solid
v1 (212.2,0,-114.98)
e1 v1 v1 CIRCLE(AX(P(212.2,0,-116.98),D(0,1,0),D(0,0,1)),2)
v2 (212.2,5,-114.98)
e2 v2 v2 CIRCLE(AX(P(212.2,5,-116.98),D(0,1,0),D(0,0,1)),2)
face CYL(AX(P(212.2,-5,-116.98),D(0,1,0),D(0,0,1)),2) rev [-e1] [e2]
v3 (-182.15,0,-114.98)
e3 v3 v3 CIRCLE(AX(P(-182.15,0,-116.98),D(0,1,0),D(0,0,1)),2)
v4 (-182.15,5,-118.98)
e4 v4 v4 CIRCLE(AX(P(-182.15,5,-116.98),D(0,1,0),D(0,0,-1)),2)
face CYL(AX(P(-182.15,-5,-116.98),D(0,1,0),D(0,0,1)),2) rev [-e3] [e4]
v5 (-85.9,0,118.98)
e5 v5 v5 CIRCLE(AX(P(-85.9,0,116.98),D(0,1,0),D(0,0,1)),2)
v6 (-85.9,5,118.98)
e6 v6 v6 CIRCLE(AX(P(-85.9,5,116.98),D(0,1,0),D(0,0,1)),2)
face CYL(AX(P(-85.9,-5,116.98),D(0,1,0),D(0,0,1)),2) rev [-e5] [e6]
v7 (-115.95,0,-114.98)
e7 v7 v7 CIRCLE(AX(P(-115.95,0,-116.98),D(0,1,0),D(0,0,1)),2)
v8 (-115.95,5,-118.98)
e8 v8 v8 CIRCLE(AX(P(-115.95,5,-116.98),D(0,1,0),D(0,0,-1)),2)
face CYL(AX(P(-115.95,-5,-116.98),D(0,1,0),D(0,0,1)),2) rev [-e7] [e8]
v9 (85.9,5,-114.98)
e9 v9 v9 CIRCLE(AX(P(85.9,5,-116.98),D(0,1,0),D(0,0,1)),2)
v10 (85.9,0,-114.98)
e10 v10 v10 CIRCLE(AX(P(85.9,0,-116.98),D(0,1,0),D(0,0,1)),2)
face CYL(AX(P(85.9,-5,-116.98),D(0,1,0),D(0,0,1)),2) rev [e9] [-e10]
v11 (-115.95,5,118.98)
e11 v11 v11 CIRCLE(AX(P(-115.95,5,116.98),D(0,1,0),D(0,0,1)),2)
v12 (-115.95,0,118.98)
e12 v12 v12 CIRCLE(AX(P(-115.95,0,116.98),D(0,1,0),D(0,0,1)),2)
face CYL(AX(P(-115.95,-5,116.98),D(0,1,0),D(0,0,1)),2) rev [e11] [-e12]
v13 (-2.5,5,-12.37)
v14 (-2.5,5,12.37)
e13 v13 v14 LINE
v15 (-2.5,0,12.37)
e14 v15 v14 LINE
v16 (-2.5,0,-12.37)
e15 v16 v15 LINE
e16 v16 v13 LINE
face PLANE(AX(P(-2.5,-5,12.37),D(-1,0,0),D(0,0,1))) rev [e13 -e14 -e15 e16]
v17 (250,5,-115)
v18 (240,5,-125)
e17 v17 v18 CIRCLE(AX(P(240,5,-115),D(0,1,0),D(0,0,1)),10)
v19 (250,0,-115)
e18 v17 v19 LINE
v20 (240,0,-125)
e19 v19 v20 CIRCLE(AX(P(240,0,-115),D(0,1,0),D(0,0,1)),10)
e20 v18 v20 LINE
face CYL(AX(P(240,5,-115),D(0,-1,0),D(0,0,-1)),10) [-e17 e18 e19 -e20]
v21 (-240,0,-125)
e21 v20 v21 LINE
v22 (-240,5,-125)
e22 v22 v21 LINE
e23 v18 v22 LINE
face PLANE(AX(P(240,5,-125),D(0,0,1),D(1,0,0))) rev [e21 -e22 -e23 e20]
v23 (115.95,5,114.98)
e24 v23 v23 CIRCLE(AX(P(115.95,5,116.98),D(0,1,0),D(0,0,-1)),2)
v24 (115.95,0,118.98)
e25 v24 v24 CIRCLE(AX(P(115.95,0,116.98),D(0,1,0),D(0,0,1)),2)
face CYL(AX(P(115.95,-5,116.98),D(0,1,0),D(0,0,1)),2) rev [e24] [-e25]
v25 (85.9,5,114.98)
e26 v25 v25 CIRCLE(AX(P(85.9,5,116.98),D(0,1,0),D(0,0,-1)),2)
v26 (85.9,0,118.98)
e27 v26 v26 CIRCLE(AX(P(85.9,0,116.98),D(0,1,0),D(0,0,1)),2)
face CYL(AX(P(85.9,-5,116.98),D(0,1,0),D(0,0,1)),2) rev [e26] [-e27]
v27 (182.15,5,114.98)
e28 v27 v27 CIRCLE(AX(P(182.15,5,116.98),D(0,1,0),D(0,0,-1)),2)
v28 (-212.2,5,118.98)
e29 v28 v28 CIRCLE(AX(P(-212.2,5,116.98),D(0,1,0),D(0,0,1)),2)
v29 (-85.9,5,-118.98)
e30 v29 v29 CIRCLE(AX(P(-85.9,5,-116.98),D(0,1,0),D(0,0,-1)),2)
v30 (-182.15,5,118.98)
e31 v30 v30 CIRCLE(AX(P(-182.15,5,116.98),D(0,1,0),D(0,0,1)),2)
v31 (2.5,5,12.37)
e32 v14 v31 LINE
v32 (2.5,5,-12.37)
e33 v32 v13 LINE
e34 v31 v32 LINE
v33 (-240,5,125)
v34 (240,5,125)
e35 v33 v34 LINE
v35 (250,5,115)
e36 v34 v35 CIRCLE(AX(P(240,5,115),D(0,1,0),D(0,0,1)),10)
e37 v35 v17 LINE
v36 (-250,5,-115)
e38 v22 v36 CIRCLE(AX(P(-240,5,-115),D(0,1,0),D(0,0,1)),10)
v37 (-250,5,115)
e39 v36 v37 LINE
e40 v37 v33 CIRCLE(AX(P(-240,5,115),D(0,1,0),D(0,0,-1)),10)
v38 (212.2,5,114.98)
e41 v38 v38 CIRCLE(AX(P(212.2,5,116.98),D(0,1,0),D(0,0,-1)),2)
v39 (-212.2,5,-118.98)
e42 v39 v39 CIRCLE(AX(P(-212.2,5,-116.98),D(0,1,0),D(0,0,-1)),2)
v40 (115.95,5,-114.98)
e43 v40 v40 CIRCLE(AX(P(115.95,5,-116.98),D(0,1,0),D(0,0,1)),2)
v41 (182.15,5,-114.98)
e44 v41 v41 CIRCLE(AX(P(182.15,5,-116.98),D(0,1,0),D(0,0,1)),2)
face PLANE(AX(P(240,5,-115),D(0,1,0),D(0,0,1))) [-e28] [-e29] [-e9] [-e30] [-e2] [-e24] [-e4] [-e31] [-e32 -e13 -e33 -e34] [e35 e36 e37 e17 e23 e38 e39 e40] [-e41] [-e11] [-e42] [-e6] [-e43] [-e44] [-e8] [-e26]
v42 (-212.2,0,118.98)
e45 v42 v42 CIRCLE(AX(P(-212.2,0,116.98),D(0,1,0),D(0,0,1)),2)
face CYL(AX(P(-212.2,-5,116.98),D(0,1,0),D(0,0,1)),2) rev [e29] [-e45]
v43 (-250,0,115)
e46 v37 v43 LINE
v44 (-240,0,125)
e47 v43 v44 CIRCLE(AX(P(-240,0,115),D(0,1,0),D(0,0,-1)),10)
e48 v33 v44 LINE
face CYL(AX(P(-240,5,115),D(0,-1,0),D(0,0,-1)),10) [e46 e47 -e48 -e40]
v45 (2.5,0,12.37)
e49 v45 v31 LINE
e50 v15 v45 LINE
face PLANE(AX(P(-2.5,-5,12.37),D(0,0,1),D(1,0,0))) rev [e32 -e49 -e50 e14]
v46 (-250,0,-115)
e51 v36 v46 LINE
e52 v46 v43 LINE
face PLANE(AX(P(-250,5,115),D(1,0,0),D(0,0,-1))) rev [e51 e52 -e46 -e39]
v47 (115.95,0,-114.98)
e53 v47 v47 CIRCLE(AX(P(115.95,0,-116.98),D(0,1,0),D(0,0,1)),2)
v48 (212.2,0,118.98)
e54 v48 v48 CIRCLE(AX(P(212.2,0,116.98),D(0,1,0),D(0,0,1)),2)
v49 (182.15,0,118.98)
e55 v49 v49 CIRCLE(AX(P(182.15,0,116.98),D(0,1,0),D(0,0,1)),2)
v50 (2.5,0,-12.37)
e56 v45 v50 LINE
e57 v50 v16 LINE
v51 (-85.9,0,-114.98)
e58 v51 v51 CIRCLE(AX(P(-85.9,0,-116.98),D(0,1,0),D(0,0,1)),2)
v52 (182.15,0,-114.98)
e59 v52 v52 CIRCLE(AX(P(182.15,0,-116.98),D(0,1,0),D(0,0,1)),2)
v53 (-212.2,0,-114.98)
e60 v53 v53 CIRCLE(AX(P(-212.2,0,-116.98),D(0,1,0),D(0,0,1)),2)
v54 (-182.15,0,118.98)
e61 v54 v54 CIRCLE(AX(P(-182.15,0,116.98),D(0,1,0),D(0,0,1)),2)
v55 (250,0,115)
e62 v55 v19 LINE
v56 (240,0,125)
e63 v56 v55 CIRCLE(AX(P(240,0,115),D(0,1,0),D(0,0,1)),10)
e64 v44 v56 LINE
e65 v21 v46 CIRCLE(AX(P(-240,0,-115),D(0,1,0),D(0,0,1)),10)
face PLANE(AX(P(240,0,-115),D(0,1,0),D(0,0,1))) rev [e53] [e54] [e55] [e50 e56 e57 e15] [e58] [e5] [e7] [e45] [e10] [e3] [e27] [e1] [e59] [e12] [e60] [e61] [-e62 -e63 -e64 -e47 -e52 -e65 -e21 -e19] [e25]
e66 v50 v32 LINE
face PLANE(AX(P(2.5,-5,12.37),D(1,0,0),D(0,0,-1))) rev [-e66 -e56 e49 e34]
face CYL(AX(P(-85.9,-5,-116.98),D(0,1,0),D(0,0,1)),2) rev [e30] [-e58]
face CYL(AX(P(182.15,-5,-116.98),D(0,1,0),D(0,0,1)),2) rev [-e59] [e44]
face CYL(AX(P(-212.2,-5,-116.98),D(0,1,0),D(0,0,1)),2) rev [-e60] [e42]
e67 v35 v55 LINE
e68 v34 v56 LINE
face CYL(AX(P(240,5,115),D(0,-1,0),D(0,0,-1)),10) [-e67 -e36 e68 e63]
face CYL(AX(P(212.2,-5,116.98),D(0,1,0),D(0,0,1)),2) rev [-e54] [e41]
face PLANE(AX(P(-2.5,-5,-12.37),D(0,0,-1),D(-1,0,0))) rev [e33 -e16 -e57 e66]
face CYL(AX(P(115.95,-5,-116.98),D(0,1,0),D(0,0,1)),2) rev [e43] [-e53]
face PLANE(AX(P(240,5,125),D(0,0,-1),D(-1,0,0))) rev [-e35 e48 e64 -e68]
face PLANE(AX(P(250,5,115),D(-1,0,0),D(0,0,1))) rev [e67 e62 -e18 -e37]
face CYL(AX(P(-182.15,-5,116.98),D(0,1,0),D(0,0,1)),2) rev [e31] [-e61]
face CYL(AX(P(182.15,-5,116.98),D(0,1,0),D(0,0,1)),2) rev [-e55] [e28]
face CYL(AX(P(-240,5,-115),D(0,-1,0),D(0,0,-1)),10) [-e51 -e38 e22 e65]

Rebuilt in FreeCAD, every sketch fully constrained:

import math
import FreeCAD as App
import Part
import Sketcher
Q = App.Units.Quantity

doc = App.newDocument("Part")
body = doc.addObject("PartDesign::Body", "Body")

# Sketch on XZ plane
sketch1 = doc.addObject("Sketcher::SketchObject", "Sketch")
body.addObject(sketch1)
sketch1.AttachmentSupport = (doc.XZ_Plane, [""])
sketch1.MapMode = "FlatFace"
sketch1.addGeometry([
    Part.LineSegment(App.Vector(-240, 125, 0), App.Vector(240, 125, 0)),  # 0
    Part.ArcOfCircle(Part.Circle(App.Vector(240, 115, 0), App.Vector(0, 0, 1), 10), math.radians(0), math.radians(90)),  # 1
    Part.LineSegment(App.Vector(250, 115, 0), App.Vector(250, -115, 0)),  # 2
    Part.ArcOfCircle(Part.Circle(App.Vector(240, -115, 0), App.Vector(0, 0, 1), 10), math.radians(-90), math.radians(0)),  # 3
    Part.LineSegment(App.Vector(240, -125, 0), App.Vector(-240, -125, 0)),  # 4
    Part.ArcOfCircle(Part.Circle(App.Vector(-240, -115, 0), App.Vector(0, 0, 1), 10), math.radians(180), math.radians(270)),  # 5
    Part.LineSegment(App.Vector(-250, -115, 0), App.Vector(-250, 115, 0)),  # 6
    Part.ArcOfCircle(Part.Circle(App.Vector(-240, 115, 0), App.Vector(0, 0, 1), 10), math.radians(90), math.radians(180)),  # 7
], False)
sketch1.addConstraint([
    Sketcher.Constraint("Tangent", 0, 2, 1, 2),
    Sketcher.Constraint("Tangent", 1, 1, 2, 1),
    Sketcher.Constraint("Tangent", 2, 2, 3, 2),
    Sketcher.Constraint("Tangent", 3, 1, 4, 1),
    Sketcher.Constraint("Tangent", 4, 2, 5, 2),
    Sketcher.Constraint("Tangent", 5, 1, 6, 1),
    Sketcher.Constraint("Tangent", 6, 2, 7, 2),
    Sketcher.Constraint("Tangent", 7, 1, 0, 1),
    Sketcher.Constraint("Horizontal", 0),
    Sketcher.Constraint("Vertical", 2),
    Sketcher.Constraint("Horizontal", 4),
    Sketcher.Constraint("Vertical", 6),
    Sketcher.Constraint("Equal", 1, 3),
    Sketcher.Constraint("Equal", 3, 5),
    Sketcher.Constraint("Equal", 5, 7),
    Sketcher.Constraint("Symmetric", 1, 3, 5, 3, -1, 1),
    Sketcher.Constraint("Radius", 1, Q("10 mm")),
    Sketcher.Constraint("DistanceX", 0, 1, 0, 2, Q("480 mm")),
    Sketcher.Constraint("DistanceY", 2, 2, 2, 1, Q("230 mm")),
])
pad1 = doc.addObject("PartDesign::Pad", "Pad")
body.addObject(pad1)
pad1.Profile = sketch1
pad1.Length = 5
pad1.Reversed = True

# Sketch on XZ plane
sketch2 = doc.addObject("Sketcher::SketchObject", "Sketch001")
body.addObject(sketch2)
sketch2.AttachmentSupport = (doc.XZ_Plane, [""])
sketch2.MapMode = "FlatFace"
sketch2.AttachmentOffset = App.Placement(App.Vector(0, 0, -5), App.Rotation())
sketch2.addGeometry([
    Part.Circle(App.Vector(-212.2, 116.98, 0), App.Vector(0, 0, 1), 2),  # 0
    Part.Circle(App.Vector(-182.15, 116.98, 0), App.Vector(0, 0, 1), 2),  # 1
    Part.Circle(App.Vector(-85.9, 116.98, 0), App.Vector(0, 0, 1), 2),  # 2
    Part.Circle(App.Vector(-115.95, 116.98, 0), App.Vector(0, 0, 1), 2),  # 3
    Part.Circle(App.Vector(212.2, 116.98, 0), App.Vector(0, 0, 1), 2),  # 4
    Part.Circle(App.Vector(182.15, 116.98, 0), App.Vector(0, 0, 1), 2),  # 5
    Part.Circle(App.Vector(115.95, 116.98, 0), App.Vector(0, 0, 1), 2),  # 6
    Part.Circle(App.Vector(85.9, 116.98, 0), App.Vector(0, 0, 1), 2),  # 7
    Part.Circle(App.Vector(212.2, -116.98, 0), App.Vector(0, 0, 1), 2),  # 8
    Part.Circle(App.Vector(182.15, -116.98, 0), App.Vector(0, 0, 1), 2),  # 9
    Part.Circle(App.Vector(115.95, -116.98, 0), App.Vector(0, 0, 1), 2),  # 10
    Part.Circle(App.Vector(85.9, -116.98, 0), App.Vector(0, 0, 1), 2),  # 11
    Part.Circle(App.Vector(-182.15, -116.98, 0), App.Vector(0, 0, 1), 2),  # 12
    Part.Circle(App.Vector(-212.2, -116.98, 0), App.Vector(0, 0, 1), 2),  # 13
    Part.Circle(App.Vector(-85.9, -116.98, 0), App.Vector(0, 0, 1), 2),  # 14
    Part.Circle(App.Vector(-115.95, -116.98, 0), App.Vector(0, 0, 1), 2),  # 15
], False)
sketch2.addConstraint([
    Sketcher.Constraint("Equal", 0, 1),
    Sketcher.Constraint("Equal", 1, 2),
    Sketcher.Constraint("Equal", 2, 3),
    Sketcher.Constraint("Equal", 3, 4),
    Sketcher.Constraint("Equal", 4, 5),
    Sketcher.Constraint("Equal", 5, 6),
    Sketcher.Constraint("Equal", 6, 7),
    Sketcher.Constraint("Equal", 7, 8),
    Sketcher.Constraint("Equal", 8, 9),
    Sketcher.Constraint("Equal", 9, 10),
    Sketcher.Constraint("Equal", 10, 11),
    Sketcher.Constraint("Equal", 11, 12),
    Sketcher.Constraint("Equal", 12, 13),
    Sketcher.Constraint("Equal", 13, 14),
    Sketcher.Constraint("Equal", 14, 15),
    Sketcher.Constraint("Symmetric", 0, 3, 8, 3, -1, 1),
    Sketcher.Constraint("Symmetric", 1, 3, 9, 3, -1, 1),
    Sketcher.Constraint("Symmetric", 3, 3, 10, 3, -1, 1),
    Sketcher.Constraint("Symmetric", 2, 3, 11, 3, -1, 1),
    Sketcher.Constraint("Symmetric", 5, 3, 12, 3, -1, 1),
    Sketcher.Constraint("Symmetric", 4, 3, 13, 3, -1, 1),
    Sketcher.Constraint("Symmetric", 7, 3, 14, 3, -1, 1),
    Sketcher.Constraint("Symmetric", 6, 3, 15, 3, -1, 1),
    Sketcher.Constraint("Symmetric", 0, 3, 4, 3, -2),
    Sketcher.Constraint("Symmetric", 1, 3, 5, 3, -2),
    Sketcher.Constraint("Symmetric", 3, 3, 6, 3, -2),
    Sketcher.Constraint("Symmetric", 2, 3, 7, 3, -2),
    Sketcher.Constraint("Horizontal", 0, 3, 1, 3),
    Sketcher.Constraint("Horizontal", 1, 3, 2, 3),
    Sketcher.Constraint("Horizontal", 2, 3, 3, 3),
    Sketcher.Constraint("Diameter", 0, Q("4 mm")),
    Sketcher.Constraint("DistanceX", 0, 3, -1, 1, Q("212.2 mm")),
    Sketcher.Constraint("DistanceX", 2, 3, -1, 1, Q("85.9 mm")),
    Sketcher.Constraint("DistanceX", 1, 3, 3, 3, Q("66.2 mm")),
    Sketcher.Constraint("DistanceX", 3, 3, 5, 3, Q("298.1 mm")),
    Sketcher.Constraint("DistanceY", -1, 1, 0, 3, Q("116.98 mm")),
])
pocket1 = doc.addObject("PartDesign::Pocket", "Pocket")
body.addObject(pocket1)
pocket1.Profile = sketch2
pocket1.Length = 10
pocket1.Reversed = True

# Sketch on XZ plane
sketch3 = doc.addObject("Sketcher::SketchObject", "Sketch002")
body.addObject(sketch3)
sketch3.AttachmentSupport = (doc.XZ_Plane, [""])
sketch3.MapMode = "FlatFace"
sketch3.AttachmentOffset = App.Placement(App.Vector(0, 0, -5), App.Rotation())
sketch3.addGeometry([
    Part.LineSegment(App.Vector(-2.5, -12.37, 0), App.Vector(-2.5, 12.37, 0)),
    Part.LineSegment(App.Vector(-2.5, 12.37, 0), App.Vector(2.5, 12.37, 0)),
    Part.LineSegment(App.Vector(2.5, 12.37, 0), App.Vector(2.5, -12.37, 0)),
    Part.LineSegment(App.Vector(2.5, -12.37, 0), App.Vector(-2.5, -12.37, 0)),
], False)
sketch3.addConstraint([
    Sketcher.Constraint("Coincident", 0, 2, 1, 1),
    Sketcher.Constraint("Coincident", 1, 2, 2, 1),
    Sketcher.Constraint("Coincident", 2, 2, 3, 1),
    Sketcher.Constraint("Coincident", 3, 2, 0, 1),
    Sketcher.Constraint("Vertical", 0),
    Sketcher.Constraint("Horizontal", 1),
    Sketcher.Constraint("Vertical", 2),
    Sketcher.Constraint("Horizontal", 3),
    Sketcher.Constraint("Symmetric", 0, 2, 2, 2, -1, 1),
    Sketcher.Constraint("DistanceX", 1, 1, 1, 2, Q("5 mm")),
    Sketcher.Constraint("DistanceY", 0, 1, 0, 2, Q("24.74 mm")),
])
pocket2 = doc.addObject("PartDesign::Pocket", "Pocket001")
body.addObject(pocket2)
pocket2.Profile = sketch3
pocket2.Length = 10
pocket2.Reversed = True

doc.recompute()
